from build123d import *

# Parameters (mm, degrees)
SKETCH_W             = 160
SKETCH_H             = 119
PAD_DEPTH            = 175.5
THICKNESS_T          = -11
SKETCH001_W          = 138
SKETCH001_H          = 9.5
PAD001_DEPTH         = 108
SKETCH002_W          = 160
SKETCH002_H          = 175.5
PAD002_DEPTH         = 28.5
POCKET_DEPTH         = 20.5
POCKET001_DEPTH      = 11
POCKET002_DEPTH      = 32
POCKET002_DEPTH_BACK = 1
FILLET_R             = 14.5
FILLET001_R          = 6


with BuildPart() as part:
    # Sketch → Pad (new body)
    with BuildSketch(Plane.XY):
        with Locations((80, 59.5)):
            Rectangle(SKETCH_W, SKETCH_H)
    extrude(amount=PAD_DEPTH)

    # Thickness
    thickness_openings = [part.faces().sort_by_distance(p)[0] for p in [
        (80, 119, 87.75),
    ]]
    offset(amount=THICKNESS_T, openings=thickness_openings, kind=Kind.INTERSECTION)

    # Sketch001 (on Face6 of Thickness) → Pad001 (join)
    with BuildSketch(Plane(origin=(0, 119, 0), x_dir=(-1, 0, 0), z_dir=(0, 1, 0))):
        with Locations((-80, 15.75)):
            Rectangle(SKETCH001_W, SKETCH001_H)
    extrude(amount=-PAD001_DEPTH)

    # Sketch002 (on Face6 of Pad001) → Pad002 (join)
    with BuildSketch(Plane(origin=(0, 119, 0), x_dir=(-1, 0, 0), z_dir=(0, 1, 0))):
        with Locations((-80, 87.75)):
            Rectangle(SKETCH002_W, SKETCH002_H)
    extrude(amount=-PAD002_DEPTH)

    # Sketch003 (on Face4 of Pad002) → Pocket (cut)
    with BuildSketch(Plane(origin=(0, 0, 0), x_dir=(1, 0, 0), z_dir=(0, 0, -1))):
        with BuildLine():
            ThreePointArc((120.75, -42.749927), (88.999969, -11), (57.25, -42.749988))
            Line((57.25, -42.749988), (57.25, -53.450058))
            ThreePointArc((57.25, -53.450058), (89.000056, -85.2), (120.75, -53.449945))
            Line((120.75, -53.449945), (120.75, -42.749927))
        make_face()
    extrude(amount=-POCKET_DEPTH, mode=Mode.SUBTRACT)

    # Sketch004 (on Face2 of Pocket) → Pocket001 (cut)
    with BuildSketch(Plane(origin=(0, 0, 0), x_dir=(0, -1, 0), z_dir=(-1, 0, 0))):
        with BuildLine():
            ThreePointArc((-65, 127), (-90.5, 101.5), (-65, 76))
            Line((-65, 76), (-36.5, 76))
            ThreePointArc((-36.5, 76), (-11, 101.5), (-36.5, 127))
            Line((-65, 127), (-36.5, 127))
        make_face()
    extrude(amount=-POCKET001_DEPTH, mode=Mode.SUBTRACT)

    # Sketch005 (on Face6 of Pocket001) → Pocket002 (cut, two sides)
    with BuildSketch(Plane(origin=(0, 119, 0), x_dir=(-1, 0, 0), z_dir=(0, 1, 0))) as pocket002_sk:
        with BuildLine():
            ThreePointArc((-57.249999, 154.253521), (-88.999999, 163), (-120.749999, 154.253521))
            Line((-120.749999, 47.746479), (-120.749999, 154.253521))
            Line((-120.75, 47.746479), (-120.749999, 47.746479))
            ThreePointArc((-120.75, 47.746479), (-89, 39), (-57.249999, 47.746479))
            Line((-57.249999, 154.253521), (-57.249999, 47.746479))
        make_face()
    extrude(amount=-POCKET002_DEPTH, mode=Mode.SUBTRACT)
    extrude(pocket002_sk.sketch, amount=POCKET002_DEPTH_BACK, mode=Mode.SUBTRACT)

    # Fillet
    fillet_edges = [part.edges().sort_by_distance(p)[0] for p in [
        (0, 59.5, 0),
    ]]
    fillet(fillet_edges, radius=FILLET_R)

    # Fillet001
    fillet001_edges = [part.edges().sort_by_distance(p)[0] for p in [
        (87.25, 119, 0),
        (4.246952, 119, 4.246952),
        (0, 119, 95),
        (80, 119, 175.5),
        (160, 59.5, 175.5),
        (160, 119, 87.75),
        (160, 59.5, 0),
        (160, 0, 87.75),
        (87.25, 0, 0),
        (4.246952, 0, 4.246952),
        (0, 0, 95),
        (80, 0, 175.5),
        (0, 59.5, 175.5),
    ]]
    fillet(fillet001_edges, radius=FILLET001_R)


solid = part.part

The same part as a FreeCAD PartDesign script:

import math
import FreeCAD as App
import Part
import Sketcher


def edges_at(feature, points):
    """Names of the edges that pass closest to the given points."""
    edges = feature.Shape.Edges
    near = lambda p: min(range(len(edges)), key=lambda i: edges[i].distToShape(Part.Vertex(*p))[0])
    return sorted({f"Edge{near(p) + 1}" for p in points})


def faces_at(feature, points):
    """Names of the faces that lie closest to the given points."""
    faces = feature.Shape.Faces
    near = lambda p: min(range(len(faces)), key=lambda i: faces[i].distToShape(Part.Vertex(*p))[0])
    return sorted({f"Face{near(p) + 1}" for p in points})


def add_polygon(sketch, points):
    """Adds a closed chain of lines whose ends are joined by coincident constraints."""
    first, n = sketch.GeometryCount, len(points)
    for a, b in zip(points, points[1:] + points[:1]):
        sketch.addGeometry(Part.LineSegment(App.Vector(*a, 0), App.Vector(*b, 0)), False)
    for i in range(n):
        sketch.addConstraint(Sketcher.Constraint("Coincident", first + i, 2, first + (i + 1) % n, 1))

doc = App.newDocument("Part")
body = doc.addObject("PartDesign::Body", "Body")

sketch1 = body.newObject("Sketcher::SketchObject", "Sketch")
sketch1.AttachmentSupport = (doc.getObject("XY_Plane"), [""])
sketch1.MapMode = "FlatFace"
add_polygon(sketch1, [(0, 119), (0, 0), (160, 0), (160, 119)])
sketch1.addConstraint(Sketcher.Constraint("Vertical", 0))
sketch1.addConstraint(Sketcher.Constraint("Horizontal", 1))
sketch1.addConstraint(Sketcher.Constraint("Vertical", 2))
sketch1.addConstraint(Sketcher.Constraint("Horizontal", 3))
sketch1.addConstraint(Sketcher.Constraint("Coincident", 0, 2, -1, 1))
sketch1.addConstraint(Sketcher.Constraint("DistanceX", 1, 1, 1, 2, 160.0))
sketch1.addConstraint(Sketcher.Constraint("DistanceY", 0, 2, 0, 1, 119.0))
pad1 = body.newObject("PartDesign::Pad", "Pad")
pad1.Profile = sketch1
pad1.Length = 175.5
doc.recompute()

thickness = body.newObject("PartDesign::Thickness", "Thickness")
thickness.Base = (pad1, faces_at(pad1, [(80, 119, 87.75)]))
thickness.Value = 11
thickness.Reversed = True
thickness.Join = "Intersection"

sketch2 = body.newObject("Sketcher::SketchObject", "Sketch001")
sketch2.AttachmentSupport = (doc.getObject("XZ_Plane"), [""])
sketch2.MapMode = "FlatFace"
sketch2.AttachmentOffset = App.Placement(App.Vector(0, 0, -119), App.Rotation())
add_polygon(sketch2, [(149, 20.5), (149, 11), (11, 11), (11, 20.5)])
sketch2.addConstraint(Sketcher.Constraint("Vertical", 0))
sketch2.addConstraint(Sketcher.Constraint("Horizontal", 1))
sketch2.addConstraint(Sketcher.Constraint("Vertical", 2))
sketch2.addConstraint(Sketcher.Constraint("Horizontal", 3))
sketch2.addConstraint(Sketcher.Constraint("DistanceX", 1, 2, 1, 1, 138.0))
sketch2.addConstraint(Sketcher.Constraint("DistanceY", 0, 2, 0, 1, 9.5))
sketch2.addConstraint(Sketcher.Constraint("DistanceX", -1, 1, 0, 2, 149.0))
sketch2.addConstraint(Sketcher.Constraint("DistanceY", -1, 1, 0, 2, 11.0))
pad2 = body.newObject("PartDesign::Pad", "Pad001")
pad2.Profile = sketch2
pad2.Length = 108

sketch3 = body.newObject("Sketcher::SketchObject", "Sketch002")
sketch3.AttachmentSupport = (doc.getObject("XZ_Plane"), [""])
sketch3.MapMode = "FlatFace"
sketch3.AttachmentOffset = App.Placement(App.Vector(0, 0, -119), App.Rotation())
add_polygon(sketch3, [(160, 175.5), (160, 0), (0, 0), (0, 175.5)])
sketch3.addConstraint(Sketcher.Constraint("Vertical", 0))
sketch3.addConstraint(Sketcher.Constraint("Horizontal", 1))
sketch3.addConstraint(Sketcher.Constraint("Vertical", 2))
sketch3.addConstraint(Sketcher.Constraint("Horizontal", 3))
sketch3.addConstraint(Sketcher.Constraint("Coincident", 1, 2, -1, 1))
sketch3.addConstraint(Sketcher.Constraint("DistanceX", 1, 2, 1, 1, 160.0))
sketch3.addConstraint(Sketcher.Constraint("DistanceY", 0, 2, 0, 1, 175.5))
pad3 = body.newObject("PartDesign::Pad", "Pad002")
pad3.Profile = sketch3
pad3.Length = 28.5

sketch4 = body.newObject("Sketcher::SketchObject", "Sketch003")
sketch4.AttachmentSupport = (doc.getObject("XY_Plane"), [""])
sketch4.MapMode = "FlatFace"
sketch4.addGeometry(Part.ArcOfCircle(Part.Circle(App.Vector(89, 42.75, 0), App.Vector(0, 0, 1), 31.75), math.radians(-179.999978), math.radians(-0.000132)), False)
sketch4.addGeometry(Part.LineSegment(App.Vector(57.25, 42.749988, 0), App.Vector(57.25, 53.450058, 0)), False)
sketch4.addGeometry(Part.ArcOfCircle(Part.Circle(App.Vector(89, 53.45, 0), App.Vector(0, 0, 1), 31.75), math.radians(-0.000099), math.radians(179.999895)), False)
sketch4.addGeometry(Part.LineSegment(App.Vector(120.75, 53.449945, 0), App.Vector(120.75, 42.749927, 0)), False)
sketch4.addConstraint(Sketcher.Constraint("Coincident", 0, 1, 1, 1))
sketch4.addConstraint(Sketcher.Constraint("Coincident", 1, 2, 2, 2))
sketch4.addConstraint(Sketcher.Constraint("Coincident", 2, 1, 3, 1))
sketch4.addConstraint(Sketcher.Constraint("Coincident", 3, 2, 0, 2))
sketch4.addConstraint(Sketcher.Constraint("Vertical", 1))
sketch4.addConstraint(Sketcher.Constraint("Vertical", 3))
sketch4.addConstraint(Sketcher.Constraint("Radius", 0, 31.75))
sketch4.addConstraint(Sketcher.Constraint("DistanceX", -1, 1, 0, 3, 89.0))
sketch4.addConstraint(Sketcher.Constraint("DistanceY", 0, 3, 2, 3, 10.7))
sketch4.addConstraint(Sketcher.Constraint("DistanceY", -1, 1, 0, 3, 42.75))
sketch4.addConstraint(Sketcher.Constraint("DistanceY", 1, 1, 1, 2, 10.70007))
sketch4.addConstraint(Sketcher.Constraint("DistanceY", 3, 2, 3, 1, 10.700018))
sketch4.addConstraint(Sketcher.Constraint("DistanceY", -1, 1, 0, 1, 42.749988))
sketch4.addConstraint(Sketcher.Constraint("DistanceY", 3, 2, 1, 2, 10.700131))
pocket1 = body.newObject("PartDesign::Pocket", "Pocket")
pocket1.Profile = sketch4
pocket1.Length = 20.5
pocket1.Reversed = True

sketch5 = body.newObject("Sketcher::SketchObject", "Sketch004")
sketch5.AttachmentSupport = (doc.getObject("YZ_Plane"), [""])
sketch5.MapMode = "FlatFace"
sketch5.addGeometry(Part.ArcOfCircle(Part.Circle(App.Vector(65, 101.5, 0), App.Vector(0, 0, 1), 25.5), math.radians(-90), math.radians(90)), False)
sketch5.addGeometry(Part.LineSegment(App.Vector(65, 76, 0), App.Vector(36.5, 76, 0)), False)
sketch5.addGeometry(Part.ArcOfCircle(Part.Circle(App.Vector(36.5, 101.5, 0), App.Vector(0, 0, 1), 25.5), math.radians(90), math.radians(270)), False)
sketch5.addGeometry(Part.LineSegment(App.Vector(36.5, 127, 0), App.Vector(65, 127, 0)), False)
sketch5.addConstraint(Sketcher.Constraint("Tangent", 0, 1, 1, 1))
sketch5.addConstraint(Sketcher.Constraint("Tangent", 1, 2, 2, 2))
sketch5.addConstraint(Sketcher.Constraint("Tangent", 2, 1, 3, 1))
sketch5.addConstraint(Sketcher.Constraint("Tangent", 3, 2, 0, 2))
sketch5.addConstraint(Sketcher.Constraint("Horizontal", 1))
sketch5.addConstraint(Sketcher.Constraint("Horizontal", 3))
sketch5.addConstraint(Sketcher.Constraint("Radius", 0, 25.5))
sketch5.addConstraint(Sketcher.Constraint("DistanceX", 1, 2, 1, 1, 28.5))
sketch5.addConstraint(Sketcher.Constraint("DistanceX", -1, 1, 0, 3, 65.0))
sketch5.addConstraint(Sketcher.Constraint("DistanceY", -1, 1, 0, 1, 76.0))
pocket2 = body.newObject("PartDesign::Pocket", "Pocket001")
pocket2.Profile = sketch5
pocket2.Length = 11
pocket2.Reversed = True

sketch6 = body.newObject("Sketcher::SketchObject", "Sketch005")
sketch6.AttachmentSupport = (doc.getObject("XZ_Plane"), [""])
sketch6.MapMode = "FlatFace"
sketch6.AttachmentOffset = App.Placement(App.Vector(0, 0, -119), App.Rotation())
sketch6.addGeometry(Part.ArcOfCircle(Part.Circle(App.Vector(88.999999, 101, 0), App.Vector(0, 0, 1), 62), math.radians(59.196404), math.radians(120.803596)), False)
sketch6.addGeometry(Part.LineSegment(App.Vector(120.749999, 154.253521, 0), App.Vector(120.749999, 47.746479, 0)), False)
sketch6.addGeometry(Part.LineSegment(App.Vector(120.75, 47.746479, 0), App.Vector(120.749999, 47.746479, 0)), False)
sketch6.addGeometry(Part.ArcOfCircle(Part.Circle(App.Vector(89, 101.000002, 0), App.Vector(0, 0, 1), 62.000002), math.radians(-120.803596), math.radians(-59.196404)), False)
sketch6.addGeometry(Part.LineSegment(App.Vector(57.249999, 47.746479, 0), App.Vector(57.249999, 154.253521, 0)), False)
sketch6.addConstraint(Sketcher.Constraint("Coincident", 0, 1, 1, 1))
sketch6.addConstraint(Sketcher.Constraint("Coincident", 1, 2, 2, 1))
sketch6.addConstraint(Sketcher.Constraint("Coincident", 2, 2, 3, 2))
sketch6.addConstraint(Sketcher.Constraint("Coincident", 3, 1, 4, 1))
sketch6.addConstraint(Sketcher.Constraint("Coincident", 4, 2, 0, 2))
sketch6.addConstraint(Sketcher.Constraint("Vertical", 1))
sketch6.addConstraint(Sketcher.Constraint("Horizontal", 2))
sketch6.addConstraint(Sketcher.Constraint("Vertical", 4))
sketch6.addConstraint(Sketcher.Constraint("Coincident", 3, 3, 0, 3))
sketch6.addConstraint(Sketcher.Constraint("Equal", 0, 3))
sketch6.addConstraint(Sketcher.Constraint("Horizontal", 2, 2, 3, 1))
sketch6.addConstraint(Sketcher.Constraint("Horizontal", 0, 1, 4, 2))
sketch6.addConstraint(Sketcher.Constraint("Radius", 0, 62.0))
sketch6.addConstraint(Sketcher.Constraint("DistanceX", -1, 1, 0, 3, 88.999999))
sketch6.addConstraint(Sketcher.Constraint("DistanceY", -1, 1, 0, 3, 101.0))
sketch6.addConstraint(Sketcher.Constraint("DistanceX", 3, 1, 1, 2, 63.5))
pocket3 = body.newObject("PartDesign::Pocket", "Pocket002")
pocket3.Profile = sketch6
pocket3.Type = "TwoLengths"
pocket3.Length = 32
pocket3.Length2 = 1
pocket3.Reversed = True
doc.recompute()

fillet = body.newObject("PartDesign::Fillet", "Fillet")
fillet.Base = (pocket3, edges_at(pocket3, [(0, 59.5, 0)]))
fillet.Radius = 14.5
doc.recompute()

fillet2 = body.newObject("PartDesign::Fillet", "Fillet001")
fillet2.Base = (fillet, edges_at(fillet, [
    (87.25, 119, 0),
    (4.247, 119, 4.247),
    (0, 119, 95),
    (80, 119, 175.5),
    (160, 59.5, 175.5),
    (160, 119, 87.75),
    (160, 59.5, 0),
    (160, 0, 87.75),
    (87.25, 0, 0),
    (4.247, 0, 4.247),
    (0, 0, 95),
    (80, 0, 175.5),
    (0, 59.5, 175.5),
]))
fillet2.Radius = 6

doc.recompute()
